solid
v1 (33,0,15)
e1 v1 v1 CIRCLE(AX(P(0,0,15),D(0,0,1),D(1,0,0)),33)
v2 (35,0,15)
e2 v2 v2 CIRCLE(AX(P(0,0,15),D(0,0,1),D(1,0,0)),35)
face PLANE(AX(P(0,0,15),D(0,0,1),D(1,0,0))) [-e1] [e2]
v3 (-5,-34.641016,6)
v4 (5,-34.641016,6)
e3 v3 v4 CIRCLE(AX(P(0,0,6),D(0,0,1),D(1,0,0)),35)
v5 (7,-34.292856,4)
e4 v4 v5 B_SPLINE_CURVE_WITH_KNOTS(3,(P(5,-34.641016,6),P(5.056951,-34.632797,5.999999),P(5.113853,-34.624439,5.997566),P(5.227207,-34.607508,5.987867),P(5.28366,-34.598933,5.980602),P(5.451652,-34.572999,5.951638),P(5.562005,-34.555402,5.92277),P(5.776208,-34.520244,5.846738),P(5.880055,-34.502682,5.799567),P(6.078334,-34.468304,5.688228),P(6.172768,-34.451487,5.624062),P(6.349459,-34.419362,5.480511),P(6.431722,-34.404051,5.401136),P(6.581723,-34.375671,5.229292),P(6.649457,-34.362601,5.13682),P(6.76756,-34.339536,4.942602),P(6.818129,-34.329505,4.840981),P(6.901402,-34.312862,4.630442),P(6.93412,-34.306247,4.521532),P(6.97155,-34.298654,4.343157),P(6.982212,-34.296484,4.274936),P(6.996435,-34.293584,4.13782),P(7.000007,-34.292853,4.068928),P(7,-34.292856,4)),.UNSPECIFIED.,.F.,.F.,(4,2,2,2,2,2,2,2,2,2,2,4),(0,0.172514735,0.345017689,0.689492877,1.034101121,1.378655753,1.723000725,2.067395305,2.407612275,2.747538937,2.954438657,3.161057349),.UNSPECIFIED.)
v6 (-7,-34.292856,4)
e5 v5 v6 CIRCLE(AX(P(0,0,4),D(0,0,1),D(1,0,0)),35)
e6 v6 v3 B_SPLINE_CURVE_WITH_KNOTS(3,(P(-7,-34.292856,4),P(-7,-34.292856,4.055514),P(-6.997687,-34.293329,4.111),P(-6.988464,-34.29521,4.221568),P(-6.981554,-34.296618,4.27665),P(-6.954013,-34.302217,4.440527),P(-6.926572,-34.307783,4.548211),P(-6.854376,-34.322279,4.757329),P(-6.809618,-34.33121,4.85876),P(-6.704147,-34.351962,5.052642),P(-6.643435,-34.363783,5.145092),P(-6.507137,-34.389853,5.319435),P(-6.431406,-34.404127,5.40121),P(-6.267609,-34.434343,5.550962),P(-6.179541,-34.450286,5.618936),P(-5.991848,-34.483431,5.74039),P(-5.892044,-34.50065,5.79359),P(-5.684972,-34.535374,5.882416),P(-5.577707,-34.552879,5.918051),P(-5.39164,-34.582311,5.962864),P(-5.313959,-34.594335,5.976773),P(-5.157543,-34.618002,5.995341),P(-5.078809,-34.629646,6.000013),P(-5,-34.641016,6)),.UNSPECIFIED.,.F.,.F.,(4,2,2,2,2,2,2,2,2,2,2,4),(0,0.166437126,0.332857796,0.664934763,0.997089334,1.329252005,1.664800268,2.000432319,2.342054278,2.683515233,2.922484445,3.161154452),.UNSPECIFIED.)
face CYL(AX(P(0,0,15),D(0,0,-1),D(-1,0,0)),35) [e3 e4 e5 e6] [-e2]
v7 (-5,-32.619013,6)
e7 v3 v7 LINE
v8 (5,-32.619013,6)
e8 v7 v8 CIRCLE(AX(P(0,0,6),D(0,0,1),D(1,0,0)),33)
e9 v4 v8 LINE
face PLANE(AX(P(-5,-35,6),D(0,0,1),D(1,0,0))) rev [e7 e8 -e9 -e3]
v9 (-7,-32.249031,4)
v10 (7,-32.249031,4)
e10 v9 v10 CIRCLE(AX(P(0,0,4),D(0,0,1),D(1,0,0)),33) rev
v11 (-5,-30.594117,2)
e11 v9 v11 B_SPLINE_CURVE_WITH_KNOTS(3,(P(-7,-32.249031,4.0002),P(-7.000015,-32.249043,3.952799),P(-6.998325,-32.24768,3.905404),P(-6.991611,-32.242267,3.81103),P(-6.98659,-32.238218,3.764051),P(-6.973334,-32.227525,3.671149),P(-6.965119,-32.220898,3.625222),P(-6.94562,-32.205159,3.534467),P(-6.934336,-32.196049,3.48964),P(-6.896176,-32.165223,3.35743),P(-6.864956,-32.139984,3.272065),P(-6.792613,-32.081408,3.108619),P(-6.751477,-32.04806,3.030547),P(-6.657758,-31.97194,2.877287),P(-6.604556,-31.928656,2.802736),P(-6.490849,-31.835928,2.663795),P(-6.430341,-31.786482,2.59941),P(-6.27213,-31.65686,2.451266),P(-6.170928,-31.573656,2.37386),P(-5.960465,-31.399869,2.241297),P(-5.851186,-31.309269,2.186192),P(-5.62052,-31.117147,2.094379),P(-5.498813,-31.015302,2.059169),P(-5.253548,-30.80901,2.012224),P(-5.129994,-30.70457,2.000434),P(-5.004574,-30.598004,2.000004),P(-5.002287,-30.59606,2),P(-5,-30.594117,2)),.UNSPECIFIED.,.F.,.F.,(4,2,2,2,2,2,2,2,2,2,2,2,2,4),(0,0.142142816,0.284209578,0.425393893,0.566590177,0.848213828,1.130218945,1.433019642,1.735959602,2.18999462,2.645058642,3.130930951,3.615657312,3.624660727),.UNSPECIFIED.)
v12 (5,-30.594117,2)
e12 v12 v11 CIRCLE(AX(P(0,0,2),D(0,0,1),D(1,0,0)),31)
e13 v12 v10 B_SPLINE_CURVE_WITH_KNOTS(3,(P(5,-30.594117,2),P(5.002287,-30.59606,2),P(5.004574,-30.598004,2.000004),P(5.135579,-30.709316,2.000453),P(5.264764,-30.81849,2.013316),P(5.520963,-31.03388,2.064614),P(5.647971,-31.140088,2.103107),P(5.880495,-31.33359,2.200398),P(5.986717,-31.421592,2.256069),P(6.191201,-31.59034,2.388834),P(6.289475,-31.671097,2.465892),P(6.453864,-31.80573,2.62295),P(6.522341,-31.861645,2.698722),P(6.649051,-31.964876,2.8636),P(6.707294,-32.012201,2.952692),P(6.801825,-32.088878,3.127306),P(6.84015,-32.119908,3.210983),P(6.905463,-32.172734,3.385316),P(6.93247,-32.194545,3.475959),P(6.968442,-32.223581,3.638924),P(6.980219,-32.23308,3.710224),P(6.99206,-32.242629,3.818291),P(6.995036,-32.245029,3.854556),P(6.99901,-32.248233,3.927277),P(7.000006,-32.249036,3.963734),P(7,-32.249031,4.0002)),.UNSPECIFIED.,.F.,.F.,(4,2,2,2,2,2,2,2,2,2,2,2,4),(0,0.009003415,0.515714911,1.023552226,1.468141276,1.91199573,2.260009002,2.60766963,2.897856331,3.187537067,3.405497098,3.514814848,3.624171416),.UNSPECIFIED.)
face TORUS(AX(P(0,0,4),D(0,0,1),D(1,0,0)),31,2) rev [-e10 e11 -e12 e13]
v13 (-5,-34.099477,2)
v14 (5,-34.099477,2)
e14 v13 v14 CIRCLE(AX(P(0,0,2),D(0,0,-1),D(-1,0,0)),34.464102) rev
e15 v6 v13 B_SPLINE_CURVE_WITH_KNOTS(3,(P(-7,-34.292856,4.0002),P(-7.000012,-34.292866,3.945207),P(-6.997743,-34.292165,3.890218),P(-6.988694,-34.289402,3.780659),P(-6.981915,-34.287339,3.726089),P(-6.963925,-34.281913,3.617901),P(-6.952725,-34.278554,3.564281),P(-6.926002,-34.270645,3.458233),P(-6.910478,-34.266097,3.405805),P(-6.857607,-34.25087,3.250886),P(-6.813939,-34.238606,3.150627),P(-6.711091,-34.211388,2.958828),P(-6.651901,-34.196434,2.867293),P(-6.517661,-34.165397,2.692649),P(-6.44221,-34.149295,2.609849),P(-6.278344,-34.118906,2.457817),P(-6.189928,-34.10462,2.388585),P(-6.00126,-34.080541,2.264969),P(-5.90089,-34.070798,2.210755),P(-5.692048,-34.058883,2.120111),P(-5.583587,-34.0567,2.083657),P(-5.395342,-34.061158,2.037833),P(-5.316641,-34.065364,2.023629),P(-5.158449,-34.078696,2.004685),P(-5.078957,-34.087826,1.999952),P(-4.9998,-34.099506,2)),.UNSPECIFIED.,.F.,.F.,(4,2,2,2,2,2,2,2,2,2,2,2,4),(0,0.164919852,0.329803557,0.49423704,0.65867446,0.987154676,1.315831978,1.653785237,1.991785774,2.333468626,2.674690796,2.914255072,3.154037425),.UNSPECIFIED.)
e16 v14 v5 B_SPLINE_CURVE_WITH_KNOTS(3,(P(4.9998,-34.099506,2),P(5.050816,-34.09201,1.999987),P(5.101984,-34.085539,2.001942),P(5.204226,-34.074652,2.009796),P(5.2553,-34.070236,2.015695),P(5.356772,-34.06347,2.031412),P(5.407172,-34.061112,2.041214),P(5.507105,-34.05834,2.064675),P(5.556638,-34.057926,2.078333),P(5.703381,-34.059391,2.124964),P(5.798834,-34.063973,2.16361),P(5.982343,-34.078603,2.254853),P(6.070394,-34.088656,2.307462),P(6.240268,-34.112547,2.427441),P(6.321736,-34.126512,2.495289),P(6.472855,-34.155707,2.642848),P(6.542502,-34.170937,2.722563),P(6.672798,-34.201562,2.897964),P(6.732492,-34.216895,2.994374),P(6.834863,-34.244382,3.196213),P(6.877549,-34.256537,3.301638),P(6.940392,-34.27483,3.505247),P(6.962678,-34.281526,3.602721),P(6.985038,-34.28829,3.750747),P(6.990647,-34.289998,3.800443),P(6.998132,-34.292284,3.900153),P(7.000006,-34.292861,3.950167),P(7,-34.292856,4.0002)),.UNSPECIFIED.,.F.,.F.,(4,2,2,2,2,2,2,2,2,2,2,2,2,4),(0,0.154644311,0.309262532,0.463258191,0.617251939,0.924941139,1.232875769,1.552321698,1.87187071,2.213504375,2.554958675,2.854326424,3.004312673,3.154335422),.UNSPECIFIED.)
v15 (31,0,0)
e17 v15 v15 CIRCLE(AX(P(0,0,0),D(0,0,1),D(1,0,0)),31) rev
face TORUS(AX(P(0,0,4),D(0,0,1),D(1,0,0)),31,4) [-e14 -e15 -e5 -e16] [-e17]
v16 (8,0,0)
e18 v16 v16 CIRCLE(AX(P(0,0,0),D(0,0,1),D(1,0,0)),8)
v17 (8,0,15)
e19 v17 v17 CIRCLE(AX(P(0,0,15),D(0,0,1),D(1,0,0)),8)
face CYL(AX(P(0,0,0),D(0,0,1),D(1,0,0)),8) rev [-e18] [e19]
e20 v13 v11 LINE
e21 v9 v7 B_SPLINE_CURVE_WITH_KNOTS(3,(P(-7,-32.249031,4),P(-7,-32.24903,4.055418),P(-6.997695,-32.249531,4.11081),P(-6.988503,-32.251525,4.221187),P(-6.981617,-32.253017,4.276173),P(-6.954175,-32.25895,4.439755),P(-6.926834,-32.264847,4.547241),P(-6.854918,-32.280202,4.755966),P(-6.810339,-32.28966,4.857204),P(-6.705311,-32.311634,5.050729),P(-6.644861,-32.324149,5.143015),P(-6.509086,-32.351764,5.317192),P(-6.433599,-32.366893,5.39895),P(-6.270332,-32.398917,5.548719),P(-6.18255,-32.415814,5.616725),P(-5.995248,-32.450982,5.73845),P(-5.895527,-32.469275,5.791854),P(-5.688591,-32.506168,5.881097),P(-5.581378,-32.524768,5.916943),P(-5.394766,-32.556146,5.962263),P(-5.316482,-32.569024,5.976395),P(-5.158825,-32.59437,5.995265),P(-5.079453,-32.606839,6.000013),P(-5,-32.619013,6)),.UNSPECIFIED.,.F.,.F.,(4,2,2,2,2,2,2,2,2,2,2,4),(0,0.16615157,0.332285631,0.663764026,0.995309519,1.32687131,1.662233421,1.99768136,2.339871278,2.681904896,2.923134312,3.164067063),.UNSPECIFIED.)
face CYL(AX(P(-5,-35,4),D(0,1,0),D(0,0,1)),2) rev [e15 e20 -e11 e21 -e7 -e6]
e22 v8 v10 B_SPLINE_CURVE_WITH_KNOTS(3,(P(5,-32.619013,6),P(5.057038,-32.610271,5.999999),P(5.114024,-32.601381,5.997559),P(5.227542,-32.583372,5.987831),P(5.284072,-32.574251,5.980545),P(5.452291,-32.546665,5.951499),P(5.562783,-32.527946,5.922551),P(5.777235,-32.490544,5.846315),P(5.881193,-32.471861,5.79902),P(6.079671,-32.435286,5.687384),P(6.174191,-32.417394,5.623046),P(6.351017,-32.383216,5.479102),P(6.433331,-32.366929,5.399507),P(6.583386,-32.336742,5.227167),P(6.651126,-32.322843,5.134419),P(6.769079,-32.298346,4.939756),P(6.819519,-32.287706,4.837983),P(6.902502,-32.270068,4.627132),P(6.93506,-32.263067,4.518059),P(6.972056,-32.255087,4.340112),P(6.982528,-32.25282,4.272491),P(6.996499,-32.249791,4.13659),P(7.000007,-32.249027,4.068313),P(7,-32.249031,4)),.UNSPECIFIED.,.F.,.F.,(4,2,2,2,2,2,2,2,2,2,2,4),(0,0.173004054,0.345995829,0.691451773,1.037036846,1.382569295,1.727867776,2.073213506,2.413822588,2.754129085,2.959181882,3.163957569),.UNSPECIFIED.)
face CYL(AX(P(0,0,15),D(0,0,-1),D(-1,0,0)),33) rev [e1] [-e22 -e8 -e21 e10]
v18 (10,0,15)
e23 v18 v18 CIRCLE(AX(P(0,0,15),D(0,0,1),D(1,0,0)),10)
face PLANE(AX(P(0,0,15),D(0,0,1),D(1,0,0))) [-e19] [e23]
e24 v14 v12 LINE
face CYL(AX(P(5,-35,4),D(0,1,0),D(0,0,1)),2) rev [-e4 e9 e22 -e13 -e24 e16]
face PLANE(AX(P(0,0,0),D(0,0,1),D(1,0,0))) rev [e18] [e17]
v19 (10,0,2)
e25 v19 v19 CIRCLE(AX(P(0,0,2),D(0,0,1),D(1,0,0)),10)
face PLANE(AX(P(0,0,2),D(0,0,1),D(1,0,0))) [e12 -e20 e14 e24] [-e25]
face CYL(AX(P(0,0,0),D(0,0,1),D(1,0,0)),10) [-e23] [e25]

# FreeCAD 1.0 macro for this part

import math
import FreeCAD as App
import Part
import Sketcher
Q = App.Units.Quantity


def edges_at(feature, points):
    """Names of the edges that pass closest to the given points."""
    edges = feature.Shape.Edges
    near = lambda p: min(range(len(edges)), key=lambda i: edges[i].distToShape(Part.Vertex(*p))[0])
    return sorted({f"Edge{near(p) + 1}" for p in points})


def faces_at(feature, points):
    """Names of the faces that lie closest to the given points."""
    faces = feature.Shape.Faces
    near = lambda p: min(range(len(faces)), key=lambda i: faces[i].distToShape(Part.Vertex(*p))[0])
    return sorted({f"Face{near(p) + 1}" for p in points})

doc = App.newDocument("Part")
body = doc.addObject("PartDesign::Body", "Body")

# Sketch on XY plane
sketch1 = body.newObject("Sketcher::SketchObject", "Sketch")
sketch1.AttachmentSupport = (doc.getObject("XY_Plane"), [""])
sketch1.MapMode = "FlatFace"
sketch1.addGeometry(Part.Circle(App.Vector(0, 0, 0), App.Vector(0, 0, 1), 35), False)
sketch1.addConstraint([
    Sketcher.Constraint("Coincident", 0, 3, -1, 1),
    Sketcher.Constraint("Diameter", 0, Q("70 mm")),
])
pad1 = body.newObject("PartDesign::Pad", "Pad")
pad1.Profile = sketch1
pad1.Length = 15

# Sketch on XY plane
sketch2 = body.newObject("Sketcher::SketchObject", "Sketch001")
sketch2.AttachmentSupport = (doc.getObject("XY_Plane"), [""])
sketch2.MapMode = "FlatFace"
sketch2.AttachmentOffset = App.Placement(App.Vector(0, 0, 15), App.Rotation())
sketch2.addGeometry(Part.Circle(App.Vector(0, 0, 0), App.Vector(0, 0, 1), 8), False)
sketch2.addConstraint([
    Sketcher.Constraint("Coincident", 0, 3, -1, 1),
    Sketcher.Constraint("Diameter", 0, Q("16 mm")),
])
pocket1 = body.newObject("PartDesign::Pocket", "Pocket")
pocket1.Profile = sketch2
pocket1.Type = "ThroughAll"
doc.recompute()

thickness = body.newObject("PartDesign::Thickness", "Thickness")
thickness.Base = (pocket1, faces_at(pocket1, [(-14, -14, 15)]))
thickness.Value = 2
thickness.Reversed = True
thickness.Join = "Intersection"
doc.recompute()

fillet = body.newObject("PartDesign::Fillet", "Fillet")
fillet.Base = (thickness, edges_at(thickness, [(-33, 0, 2)]))
fillet.Radius = 2
doc.recompute()

fillet2 = body.newObject("PartDesign::Fillet", "Fillet001")
fillet2.Base = (fillet, edges_at(fillet, [(-35, 0, 0)]))
fillet2.Radius = 4

# Sketch on XZ plane
sketch3 = body.newObject("Sketcher::SketchObject", "Sketch002")
sketch3.AttachmentSupport = (doc.getObject("XZ_Plane"), [""])
sketch3.MapMode = "FlatFace"
sketch3.AttachmentOffset = App.Placement(App.Vector(0, 0, 25), App.Rotation())
sketch3.addGeometry([
    Part.LineSegment(App.Vector(5, 2, 0), App.Vector(-5, 2, 0)),
    Part.ArcOfCircle(Part.Circle(App.Vector(-5, 4, 0), App.Vector(0, 0, 1), 2), math.radians(90), math.radians(270)),
    Part.LineSegment(App.Vector(-5, 6, 0), App.Vector(5, 6, 0)),
    Part.ArcOfCircle(Part.Circle(App.Vector(5, 4, 0), App.Vector(0, 0, 1), 2), math.radians(-90), math.radians(90)),
], False)
sketch3.addConstraint([
    Sketcher.Constraint("Tangent", 0, 2, 1, 2),
    Sketcher.Constraint("Tangent", 1, 1, 2, 1),
    Sketcher.Constraint("Tangent", 2, 2, 3, 2),
    Sketcher.Constraint("Tangent", 3, 1, 0, 1),
    Sketcher.Constraint("Horizontal", 0),
    Sketcher.Constraint("Horizontal", 2),
    Sketcher.Constraint("Radius", 1, Q("2 mm")),
    Sketcher.Constraint("DistanceX", 0, 2, 0, 1, Q("10 mm")),
    Sketcher.Constraint("DistanceX", 1, 3, -1, 1, Q("5 mm")),
    Sketcher.Constraint("DistanceY", -1, 1, 1, 3, Q("4 mm")),
])
pocket2 = body.newObject("PartDesign::Pocket", "Pocket001")
pocket2.Profile = sketch3
pocket2.Type = "ThroughAll"
pocket2.Reversed = True

doc.recompute()
